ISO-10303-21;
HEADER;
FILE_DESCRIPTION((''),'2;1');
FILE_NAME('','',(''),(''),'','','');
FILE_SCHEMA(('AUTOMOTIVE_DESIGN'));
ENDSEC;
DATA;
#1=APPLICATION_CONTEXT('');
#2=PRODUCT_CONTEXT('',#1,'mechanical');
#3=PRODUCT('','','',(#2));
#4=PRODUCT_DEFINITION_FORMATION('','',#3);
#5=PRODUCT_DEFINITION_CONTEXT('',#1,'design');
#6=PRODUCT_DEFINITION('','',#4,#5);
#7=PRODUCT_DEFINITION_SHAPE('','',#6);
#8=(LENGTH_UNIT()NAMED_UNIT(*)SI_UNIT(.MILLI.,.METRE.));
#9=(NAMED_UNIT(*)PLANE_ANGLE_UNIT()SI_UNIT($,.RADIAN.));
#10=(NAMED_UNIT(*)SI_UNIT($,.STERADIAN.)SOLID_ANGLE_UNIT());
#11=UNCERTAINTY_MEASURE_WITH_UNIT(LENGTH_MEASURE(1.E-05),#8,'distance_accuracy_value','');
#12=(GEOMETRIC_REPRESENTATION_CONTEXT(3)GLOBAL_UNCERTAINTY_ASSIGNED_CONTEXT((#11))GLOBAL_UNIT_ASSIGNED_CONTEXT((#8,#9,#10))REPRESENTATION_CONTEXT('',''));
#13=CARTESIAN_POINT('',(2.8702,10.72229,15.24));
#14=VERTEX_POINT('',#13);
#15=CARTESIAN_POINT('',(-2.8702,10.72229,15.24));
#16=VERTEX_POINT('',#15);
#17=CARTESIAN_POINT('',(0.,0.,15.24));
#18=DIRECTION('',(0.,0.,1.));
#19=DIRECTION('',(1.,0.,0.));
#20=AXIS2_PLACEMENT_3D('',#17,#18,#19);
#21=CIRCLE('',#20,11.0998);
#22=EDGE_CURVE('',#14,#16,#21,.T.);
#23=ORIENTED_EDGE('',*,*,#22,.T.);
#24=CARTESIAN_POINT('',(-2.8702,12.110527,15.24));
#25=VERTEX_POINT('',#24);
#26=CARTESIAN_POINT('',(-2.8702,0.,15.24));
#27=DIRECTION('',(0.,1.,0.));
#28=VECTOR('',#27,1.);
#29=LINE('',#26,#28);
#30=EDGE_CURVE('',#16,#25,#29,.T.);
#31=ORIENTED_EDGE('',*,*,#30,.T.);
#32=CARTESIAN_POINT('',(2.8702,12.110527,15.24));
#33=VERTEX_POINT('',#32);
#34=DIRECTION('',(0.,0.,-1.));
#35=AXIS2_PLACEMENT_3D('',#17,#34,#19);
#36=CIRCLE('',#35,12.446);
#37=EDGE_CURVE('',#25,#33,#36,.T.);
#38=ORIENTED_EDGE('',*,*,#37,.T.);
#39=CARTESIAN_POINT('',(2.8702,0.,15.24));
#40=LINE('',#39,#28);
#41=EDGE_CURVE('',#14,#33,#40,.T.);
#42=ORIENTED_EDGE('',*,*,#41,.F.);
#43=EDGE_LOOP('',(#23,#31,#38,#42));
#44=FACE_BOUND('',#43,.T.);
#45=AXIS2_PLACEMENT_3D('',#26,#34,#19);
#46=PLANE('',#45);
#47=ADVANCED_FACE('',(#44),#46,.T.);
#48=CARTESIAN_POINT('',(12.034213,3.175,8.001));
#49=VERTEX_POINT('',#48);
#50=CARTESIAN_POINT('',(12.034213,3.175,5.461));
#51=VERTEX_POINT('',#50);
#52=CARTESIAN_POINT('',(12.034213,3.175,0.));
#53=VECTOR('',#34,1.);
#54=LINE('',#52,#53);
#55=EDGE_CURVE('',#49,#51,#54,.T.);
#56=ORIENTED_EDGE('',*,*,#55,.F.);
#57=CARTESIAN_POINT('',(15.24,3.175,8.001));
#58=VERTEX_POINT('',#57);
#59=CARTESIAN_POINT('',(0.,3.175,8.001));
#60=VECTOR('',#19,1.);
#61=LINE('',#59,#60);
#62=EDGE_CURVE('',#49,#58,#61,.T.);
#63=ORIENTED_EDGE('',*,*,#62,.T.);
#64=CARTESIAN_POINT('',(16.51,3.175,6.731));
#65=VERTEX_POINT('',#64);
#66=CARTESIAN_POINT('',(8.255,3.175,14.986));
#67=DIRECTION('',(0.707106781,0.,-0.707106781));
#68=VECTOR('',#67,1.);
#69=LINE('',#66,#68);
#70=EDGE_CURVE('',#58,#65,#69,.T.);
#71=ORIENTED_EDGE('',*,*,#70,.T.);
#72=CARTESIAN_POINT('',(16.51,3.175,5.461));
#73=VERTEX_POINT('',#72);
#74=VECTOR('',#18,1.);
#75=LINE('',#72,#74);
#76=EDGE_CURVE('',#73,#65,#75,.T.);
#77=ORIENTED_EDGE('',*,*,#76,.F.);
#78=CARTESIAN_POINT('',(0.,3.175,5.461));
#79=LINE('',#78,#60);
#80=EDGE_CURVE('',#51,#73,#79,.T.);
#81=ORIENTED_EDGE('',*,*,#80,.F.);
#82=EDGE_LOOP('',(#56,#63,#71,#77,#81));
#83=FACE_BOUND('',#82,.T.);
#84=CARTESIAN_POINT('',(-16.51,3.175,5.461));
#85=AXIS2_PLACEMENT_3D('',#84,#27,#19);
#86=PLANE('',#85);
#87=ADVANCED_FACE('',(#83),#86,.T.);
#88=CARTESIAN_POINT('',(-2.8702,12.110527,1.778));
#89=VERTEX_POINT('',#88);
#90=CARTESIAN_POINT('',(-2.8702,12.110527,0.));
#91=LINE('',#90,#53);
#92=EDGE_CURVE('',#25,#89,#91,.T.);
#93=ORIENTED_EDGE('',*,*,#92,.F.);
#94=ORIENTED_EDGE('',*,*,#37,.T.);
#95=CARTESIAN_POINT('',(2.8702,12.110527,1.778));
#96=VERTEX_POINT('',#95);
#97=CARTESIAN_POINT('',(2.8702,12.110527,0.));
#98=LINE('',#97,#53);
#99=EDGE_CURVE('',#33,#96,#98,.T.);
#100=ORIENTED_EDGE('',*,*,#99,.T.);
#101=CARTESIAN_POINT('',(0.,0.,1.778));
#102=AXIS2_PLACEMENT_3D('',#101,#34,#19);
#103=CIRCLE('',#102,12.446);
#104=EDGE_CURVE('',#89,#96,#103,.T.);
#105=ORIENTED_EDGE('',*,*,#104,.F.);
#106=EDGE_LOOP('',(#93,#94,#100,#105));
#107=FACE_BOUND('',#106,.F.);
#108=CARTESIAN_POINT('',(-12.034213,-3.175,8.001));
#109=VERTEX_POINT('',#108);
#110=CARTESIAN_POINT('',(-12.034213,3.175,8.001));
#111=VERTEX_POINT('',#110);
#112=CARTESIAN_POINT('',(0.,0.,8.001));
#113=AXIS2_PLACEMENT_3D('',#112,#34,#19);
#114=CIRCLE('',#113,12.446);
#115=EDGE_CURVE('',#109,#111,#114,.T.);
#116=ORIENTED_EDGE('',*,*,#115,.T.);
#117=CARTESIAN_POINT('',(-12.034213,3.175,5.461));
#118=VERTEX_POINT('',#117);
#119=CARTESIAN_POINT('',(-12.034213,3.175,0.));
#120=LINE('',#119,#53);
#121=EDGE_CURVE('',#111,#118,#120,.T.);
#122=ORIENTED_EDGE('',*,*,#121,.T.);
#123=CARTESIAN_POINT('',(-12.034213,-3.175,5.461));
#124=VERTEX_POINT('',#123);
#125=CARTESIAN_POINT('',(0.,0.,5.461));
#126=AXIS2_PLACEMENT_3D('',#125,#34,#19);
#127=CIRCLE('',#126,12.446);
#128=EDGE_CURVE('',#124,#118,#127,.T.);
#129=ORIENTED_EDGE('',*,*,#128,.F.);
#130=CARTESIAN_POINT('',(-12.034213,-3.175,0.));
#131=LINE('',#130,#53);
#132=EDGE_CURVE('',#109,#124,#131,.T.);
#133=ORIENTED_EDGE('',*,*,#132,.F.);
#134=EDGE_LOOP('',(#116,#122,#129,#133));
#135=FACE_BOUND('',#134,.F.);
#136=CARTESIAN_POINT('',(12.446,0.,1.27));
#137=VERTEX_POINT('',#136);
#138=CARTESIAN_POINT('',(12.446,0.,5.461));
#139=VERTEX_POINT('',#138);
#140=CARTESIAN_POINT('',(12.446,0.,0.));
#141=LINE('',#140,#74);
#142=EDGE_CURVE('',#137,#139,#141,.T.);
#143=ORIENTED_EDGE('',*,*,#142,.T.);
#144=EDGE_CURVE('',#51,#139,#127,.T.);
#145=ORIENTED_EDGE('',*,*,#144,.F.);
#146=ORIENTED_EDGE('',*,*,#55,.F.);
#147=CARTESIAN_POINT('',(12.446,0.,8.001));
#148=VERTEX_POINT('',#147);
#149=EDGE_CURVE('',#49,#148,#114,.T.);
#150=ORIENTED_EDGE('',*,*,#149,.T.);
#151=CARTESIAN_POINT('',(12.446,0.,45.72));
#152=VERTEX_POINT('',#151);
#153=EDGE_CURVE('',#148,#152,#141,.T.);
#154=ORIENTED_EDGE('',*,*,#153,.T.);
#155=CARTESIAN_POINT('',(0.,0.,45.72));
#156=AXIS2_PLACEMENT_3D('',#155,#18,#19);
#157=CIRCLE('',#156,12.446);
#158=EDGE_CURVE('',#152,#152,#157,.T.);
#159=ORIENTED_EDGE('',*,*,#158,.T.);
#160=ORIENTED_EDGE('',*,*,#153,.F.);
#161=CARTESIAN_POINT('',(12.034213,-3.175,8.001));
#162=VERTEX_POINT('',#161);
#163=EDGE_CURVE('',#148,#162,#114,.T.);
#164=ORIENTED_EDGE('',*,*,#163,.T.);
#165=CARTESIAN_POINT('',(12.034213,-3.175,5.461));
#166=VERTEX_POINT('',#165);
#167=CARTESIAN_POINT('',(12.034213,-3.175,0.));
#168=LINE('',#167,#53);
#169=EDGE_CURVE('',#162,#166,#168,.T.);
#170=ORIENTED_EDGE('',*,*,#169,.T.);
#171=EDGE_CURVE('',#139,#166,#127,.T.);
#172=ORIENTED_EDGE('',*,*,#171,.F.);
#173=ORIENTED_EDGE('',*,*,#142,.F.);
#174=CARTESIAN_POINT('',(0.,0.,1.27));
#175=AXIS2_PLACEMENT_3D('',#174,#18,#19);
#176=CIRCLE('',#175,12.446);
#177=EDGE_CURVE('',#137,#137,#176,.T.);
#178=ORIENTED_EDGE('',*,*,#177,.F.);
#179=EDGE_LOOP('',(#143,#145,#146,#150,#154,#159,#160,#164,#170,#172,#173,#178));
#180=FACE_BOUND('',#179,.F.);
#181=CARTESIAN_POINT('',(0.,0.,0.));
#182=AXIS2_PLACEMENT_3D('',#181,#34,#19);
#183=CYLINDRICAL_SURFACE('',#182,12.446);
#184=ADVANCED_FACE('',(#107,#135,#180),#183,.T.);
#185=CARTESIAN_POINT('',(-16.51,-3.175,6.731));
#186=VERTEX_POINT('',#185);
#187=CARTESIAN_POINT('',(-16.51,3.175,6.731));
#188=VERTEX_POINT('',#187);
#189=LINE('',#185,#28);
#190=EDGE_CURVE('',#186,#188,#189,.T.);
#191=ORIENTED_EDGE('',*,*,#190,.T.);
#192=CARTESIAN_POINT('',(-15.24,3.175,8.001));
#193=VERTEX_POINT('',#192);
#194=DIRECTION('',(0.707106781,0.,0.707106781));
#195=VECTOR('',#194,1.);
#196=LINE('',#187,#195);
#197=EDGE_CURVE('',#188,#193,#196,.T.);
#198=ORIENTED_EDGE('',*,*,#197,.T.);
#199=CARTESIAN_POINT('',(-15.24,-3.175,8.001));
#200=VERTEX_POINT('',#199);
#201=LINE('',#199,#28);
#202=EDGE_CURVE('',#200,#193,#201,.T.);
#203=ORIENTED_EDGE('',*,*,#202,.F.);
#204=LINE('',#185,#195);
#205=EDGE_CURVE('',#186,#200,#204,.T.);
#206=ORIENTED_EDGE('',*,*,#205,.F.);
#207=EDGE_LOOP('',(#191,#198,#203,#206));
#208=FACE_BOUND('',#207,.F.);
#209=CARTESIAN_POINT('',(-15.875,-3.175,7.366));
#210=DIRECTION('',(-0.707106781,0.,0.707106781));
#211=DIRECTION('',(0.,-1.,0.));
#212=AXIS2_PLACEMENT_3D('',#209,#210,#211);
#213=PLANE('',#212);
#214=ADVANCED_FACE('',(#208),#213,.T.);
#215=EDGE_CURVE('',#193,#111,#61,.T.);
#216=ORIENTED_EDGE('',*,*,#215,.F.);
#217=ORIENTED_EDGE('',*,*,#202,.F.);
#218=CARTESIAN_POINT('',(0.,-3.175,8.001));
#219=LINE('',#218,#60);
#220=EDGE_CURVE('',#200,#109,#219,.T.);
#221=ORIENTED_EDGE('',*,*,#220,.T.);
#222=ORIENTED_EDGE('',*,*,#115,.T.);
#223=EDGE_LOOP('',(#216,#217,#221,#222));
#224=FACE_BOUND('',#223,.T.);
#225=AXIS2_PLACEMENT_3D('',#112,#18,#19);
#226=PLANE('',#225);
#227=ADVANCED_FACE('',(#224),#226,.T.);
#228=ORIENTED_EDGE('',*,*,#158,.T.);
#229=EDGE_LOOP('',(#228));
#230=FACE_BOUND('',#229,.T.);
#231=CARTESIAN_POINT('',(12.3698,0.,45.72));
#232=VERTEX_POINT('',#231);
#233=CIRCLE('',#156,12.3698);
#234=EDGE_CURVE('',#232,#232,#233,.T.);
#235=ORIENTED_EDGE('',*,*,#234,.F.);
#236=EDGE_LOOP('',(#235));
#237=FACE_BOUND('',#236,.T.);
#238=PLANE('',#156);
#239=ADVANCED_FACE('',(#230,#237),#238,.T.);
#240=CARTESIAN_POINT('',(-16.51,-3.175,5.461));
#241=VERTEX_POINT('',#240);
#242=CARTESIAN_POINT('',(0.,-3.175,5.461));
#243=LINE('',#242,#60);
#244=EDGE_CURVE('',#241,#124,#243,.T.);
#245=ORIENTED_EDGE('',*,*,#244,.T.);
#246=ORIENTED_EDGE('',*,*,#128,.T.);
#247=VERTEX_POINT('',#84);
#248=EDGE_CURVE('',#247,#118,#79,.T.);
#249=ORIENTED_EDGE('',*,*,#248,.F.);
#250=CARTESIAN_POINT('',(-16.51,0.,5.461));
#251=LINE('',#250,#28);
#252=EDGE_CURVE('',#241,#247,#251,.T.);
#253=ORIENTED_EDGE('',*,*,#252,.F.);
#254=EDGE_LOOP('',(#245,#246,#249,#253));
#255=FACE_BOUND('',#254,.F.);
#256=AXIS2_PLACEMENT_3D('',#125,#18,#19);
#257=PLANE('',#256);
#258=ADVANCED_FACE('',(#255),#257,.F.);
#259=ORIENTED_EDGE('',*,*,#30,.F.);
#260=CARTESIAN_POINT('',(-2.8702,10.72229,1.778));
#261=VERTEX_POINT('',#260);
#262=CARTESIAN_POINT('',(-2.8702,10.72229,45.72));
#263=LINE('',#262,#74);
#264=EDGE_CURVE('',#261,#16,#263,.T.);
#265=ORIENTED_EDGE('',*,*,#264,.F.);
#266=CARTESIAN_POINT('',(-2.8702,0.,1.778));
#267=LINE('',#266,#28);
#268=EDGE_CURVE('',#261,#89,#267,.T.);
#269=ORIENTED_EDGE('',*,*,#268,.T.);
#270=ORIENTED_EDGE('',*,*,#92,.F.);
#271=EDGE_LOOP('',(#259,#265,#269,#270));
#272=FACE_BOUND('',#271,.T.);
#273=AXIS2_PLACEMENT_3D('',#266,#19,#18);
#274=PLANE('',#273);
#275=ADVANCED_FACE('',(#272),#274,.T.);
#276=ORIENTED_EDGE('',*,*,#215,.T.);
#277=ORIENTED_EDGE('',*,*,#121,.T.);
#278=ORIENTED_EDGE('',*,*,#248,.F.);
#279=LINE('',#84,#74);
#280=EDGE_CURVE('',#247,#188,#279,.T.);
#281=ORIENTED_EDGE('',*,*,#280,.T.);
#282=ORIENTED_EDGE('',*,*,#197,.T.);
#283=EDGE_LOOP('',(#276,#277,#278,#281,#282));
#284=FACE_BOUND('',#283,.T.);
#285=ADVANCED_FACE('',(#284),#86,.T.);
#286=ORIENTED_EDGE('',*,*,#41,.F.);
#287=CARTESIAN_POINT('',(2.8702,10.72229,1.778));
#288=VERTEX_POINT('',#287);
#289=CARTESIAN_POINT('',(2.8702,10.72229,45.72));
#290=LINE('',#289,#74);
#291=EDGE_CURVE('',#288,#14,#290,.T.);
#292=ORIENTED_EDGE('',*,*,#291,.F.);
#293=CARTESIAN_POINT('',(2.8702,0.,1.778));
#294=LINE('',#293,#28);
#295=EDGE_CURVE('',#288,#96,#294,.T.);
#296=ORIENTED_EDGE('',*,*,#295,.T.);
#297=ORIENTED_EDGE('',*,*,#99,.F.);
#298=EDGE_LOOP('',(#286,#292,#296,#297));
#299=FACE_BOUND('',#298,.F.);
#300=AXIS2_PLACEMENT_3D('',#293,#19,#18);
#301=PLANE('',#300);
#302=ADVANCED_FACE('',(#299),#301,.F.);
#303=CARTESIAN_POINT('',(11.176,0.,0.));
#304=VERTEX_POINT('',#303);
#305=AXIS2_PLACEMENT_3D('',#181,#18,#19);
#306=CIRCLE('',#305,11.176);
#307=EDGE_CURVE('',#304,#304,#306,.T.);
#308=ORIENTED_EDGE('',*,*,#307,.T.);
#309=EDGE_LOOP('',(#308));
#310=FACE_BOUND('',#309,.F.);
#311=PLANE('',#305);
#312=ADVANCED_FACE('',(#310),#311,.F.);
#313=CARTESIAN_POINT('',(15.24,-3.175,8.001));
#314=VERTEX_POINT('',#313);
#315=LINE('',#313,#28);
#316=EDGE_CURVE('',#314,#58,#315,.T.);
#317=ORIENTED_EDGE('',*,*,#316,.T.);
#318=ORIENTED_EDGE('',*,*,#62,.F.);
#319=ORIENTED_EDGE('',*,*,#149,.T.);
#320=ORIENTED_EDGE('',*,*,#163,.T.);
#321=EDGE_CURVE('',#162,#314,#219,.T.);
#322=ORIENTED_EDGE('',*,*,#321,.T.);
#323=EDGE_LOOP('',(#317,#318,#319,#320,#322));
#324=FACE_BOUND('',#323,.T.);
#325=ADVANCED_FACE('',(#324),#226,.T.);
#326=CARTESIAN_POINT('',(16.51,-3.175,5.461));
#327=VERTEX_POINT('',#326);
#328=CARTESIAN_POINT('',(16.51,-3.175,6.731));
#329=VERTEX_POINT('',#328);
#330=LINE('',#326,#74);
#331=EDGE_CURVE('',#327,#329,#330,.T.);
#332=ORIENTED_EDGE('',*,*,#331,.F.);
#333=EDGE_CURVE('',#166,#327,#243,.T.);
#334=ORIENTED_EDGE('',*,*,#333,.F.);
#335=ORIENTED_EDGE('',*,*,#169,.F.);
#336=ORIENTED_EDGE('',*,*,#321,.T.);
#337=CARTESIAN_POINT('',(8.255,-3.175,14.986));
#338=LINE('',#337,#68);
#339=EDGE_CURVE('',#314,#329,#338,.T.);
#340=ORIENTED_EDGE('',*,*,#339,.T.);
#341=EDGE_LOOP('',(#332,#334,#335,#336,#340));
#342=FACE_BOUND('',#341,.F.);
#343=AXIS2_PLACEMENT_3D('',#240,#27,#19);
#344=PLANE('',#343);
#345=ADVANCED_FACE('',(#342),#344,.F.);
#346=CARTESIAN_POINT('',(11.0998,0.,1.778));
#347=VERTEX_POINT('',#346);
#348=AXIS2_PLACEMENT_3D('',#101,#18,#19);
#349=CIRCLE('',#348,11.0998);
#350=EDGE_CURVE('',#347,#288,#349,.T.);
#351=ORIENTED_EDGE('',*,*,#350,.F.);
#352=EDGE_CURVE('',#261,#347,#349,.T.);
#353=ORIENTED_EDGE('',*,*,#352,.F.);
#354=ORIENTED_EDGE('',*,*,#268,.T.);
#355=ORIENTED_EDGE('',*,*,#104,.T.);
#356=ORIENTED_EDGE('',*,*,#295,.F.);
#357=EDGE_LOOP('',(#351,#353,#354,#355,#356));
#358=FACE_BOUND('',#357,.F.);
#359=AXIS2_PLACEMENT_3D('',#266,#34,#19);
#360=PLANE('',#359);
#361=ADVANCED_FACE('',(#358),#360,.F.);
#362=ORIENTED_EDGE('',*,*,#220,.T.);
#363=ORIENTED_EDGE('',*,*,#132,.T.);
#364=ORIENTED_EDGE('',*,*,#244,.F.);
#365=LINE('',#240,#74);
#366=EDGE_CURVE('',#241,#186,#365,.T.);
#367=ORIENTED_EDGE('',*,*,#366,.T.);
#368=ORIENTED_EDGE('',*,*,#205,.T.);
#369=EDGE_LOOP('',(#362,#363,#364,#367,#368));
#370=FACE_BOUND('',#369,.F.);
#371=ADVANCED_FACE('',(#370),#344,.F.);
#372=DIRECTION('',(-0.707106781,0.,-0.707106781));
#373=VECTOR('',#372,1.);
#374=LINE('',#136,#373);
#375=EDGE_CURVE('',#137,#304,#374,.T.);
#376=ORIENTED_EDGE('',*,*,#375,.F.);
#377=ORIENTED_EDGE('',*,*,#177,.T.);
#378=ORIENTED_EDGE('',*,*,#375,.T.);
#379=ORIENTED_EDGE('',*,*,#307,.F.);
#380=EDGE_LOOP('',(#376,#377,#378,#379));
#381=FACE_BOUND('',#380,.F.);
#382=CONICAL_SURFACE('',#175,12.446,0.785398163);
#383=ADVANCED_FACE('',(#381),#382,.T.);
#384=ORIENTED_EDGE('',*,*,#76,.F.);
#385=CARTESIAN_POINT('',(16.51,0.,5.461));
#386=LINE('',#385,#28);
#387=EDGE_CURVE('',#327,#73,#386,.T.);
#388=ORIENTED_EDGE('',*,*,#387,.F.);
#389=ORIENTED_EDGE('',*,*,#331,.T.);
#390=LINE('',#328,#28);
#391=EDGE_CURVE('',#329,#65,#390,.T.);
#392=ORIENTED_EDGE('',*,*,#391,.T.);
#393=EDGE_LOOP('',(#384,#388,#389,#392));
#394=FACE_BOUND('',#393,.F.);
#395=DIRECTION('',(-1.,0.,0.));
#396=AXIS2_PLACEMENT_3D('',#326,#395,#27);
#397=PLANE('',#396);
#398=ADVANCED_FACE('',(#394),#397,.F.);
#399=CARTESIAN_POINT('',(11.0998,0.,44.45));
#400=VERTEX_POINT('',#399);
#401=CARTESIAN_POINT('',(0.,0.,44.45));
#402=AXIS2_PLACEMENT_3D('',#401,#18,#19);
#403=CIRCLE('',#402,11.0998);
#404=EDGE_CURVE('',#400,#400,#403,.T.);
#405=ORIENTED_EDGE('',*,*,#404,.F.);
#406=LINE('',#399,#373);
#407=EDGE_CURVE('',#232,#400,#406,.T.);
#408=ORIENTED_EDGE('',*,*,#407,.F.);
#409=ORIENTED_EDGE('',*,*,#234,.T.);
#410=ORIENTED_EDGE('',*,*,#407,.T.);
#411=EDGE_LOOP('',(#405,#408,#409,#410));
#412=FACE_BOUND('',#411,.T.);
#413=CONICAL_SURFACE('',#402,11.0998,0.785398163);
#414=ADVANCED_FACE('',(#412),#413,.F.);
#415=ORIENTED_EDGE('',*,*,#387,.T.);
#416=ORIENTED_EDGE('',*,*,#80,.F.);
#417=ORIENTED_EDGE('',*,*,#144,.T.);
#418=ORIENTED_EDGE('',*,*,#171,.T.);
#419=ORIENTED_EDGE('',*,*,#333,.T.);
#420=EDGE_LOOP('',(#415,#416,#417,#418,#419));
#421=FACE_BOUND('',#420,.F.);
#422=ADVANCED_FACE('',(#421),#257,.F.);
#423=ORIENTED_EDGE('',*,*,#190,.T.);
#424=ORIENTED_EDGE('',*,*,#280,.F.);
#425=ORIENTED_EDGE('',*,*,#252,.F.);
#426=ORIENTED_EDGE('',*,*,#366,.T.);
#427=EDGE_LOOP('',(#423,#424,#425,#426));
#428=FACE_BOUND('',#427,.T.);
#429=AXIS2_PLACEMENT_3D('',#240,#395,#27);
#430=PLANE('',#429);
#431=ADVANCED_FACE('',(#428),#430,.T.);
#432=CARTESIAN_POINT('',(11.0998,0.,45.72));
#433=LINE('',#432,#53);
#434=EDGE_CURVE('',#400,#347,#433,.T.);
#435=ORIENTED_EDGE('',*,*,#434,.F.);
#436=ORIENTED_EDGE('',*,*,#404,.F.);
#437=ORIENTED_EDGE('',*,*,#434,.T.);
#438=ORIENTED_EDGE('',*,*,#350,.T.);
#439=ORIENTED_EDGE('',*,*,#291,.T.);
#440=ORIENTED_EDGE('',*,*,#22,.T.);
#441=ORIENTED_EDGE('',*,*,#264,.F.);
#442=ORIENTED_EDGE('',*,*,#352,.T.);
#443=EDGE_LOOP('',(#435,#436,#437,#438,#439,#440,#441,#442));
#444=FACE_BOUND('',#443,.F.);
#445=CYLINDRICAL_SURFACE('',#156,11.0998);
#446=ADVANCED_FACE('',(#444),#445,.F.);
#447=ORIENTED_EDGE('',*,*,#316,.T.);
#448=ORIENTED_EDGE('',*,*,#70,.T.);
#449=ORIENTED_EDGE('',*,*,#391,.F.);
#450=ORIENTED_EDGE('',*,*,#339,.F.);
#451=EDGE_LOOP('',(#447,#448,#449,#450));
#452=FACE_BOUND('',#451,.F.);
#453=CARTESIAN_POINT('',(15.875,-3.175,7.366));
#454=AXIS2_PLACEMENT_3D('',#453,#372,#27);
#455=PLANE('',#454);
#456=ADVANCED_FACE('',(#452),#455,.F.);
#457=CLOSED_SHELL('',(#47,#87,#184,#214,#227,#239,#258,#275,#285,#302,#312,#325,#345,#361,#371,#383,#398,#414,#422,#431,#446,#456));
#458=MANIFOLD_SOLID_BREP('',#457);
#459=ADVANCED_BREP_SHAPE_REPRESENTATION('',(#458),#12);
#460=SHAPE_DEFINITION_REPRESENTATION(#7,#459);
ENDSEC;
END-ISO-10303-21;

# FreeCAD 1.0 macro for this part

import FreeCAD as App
import Part
import Sketcher
Q = App.Units.Quantity


def edges_at(feature, points):
    """Names of the edges that pass closest to the given points."""
    edges = feature.Shape.Edges
    near = lambda p: min(range(len(edges)), key=lambda i: edges[i].distToShape(Part.Vertex(*p))[0])
    return sorted({f"Edge{near(p) + 1}" for p in points})

doc = App.newDocument("Part")
body = doc.addObject("PartDesign::Body", "Body")

# Sketch on XY plane
sketch1 = body.newObject("Sketcher::SketchObject", "Sketch")
sketch1.AttachmentSupport = (doc.getObject("XY_Plane"), [""])
sketch1.MapMode = "FlatFace"
sketch1.addGeometry(Part.Circle(App.Vector(0, 0, 0), App.Vector(0, 0, 1), 12), False)
sketch1.addConstraint([
    Sketcher.Constraint("Coincident", 0, 3, -1, 1),
    Sketcher.Constraint("Diameter", 0, Q("0.98 in")),
])
pad1 = body.newObject("PartDesign::Pad", "Pad")
pad1.Profile = sketch1
pad1.Length = Q("1.8 in")

# Sketch on XY plane
sketch2 = body.newObject("Sketcher::SketchObject", "Sketch001")
sketch2.AttachmentSupport = (doc.getObject("XY_Plane"), [""])
sketch2.MapMode = "FlatFace"
sketch2.AttachmentOffset = App.Placement(App.Vector(0, 0, 0.215 * 25.4), App.Rotation())
sketch2.addGeometry([
    Part.LineSegment(App.Vector(-17, 3, 0), App.Vector(-17, -3, 0)),
    Part.LineSegment(App.Vector(-17, -3, 0), App.Vector(17, -3, 0)),
    Part.LineSegment(App.Vector(17, -3, 0), App.Vector(17, 3, 0)),
    Part.LineSegment(App.Vector(17, 3, 0), App.Vector(-17, 3, 0)),
], False)
sketch2.addConstraint([
    Sketcher.Constraint("Coincident", 0, 2, 1, 1),
    Sketcher.Constraint("Coincident", 1, 2, 2, 1),
    Sketcher.Constraint("Coincident", 2, 2, 3, 1),
    Sketcher.Constraint("Coincident", 3, 2, 0, 1),
    Sketcher.Constraint("Vertical", 0),
    Sketcher.Constraint("Horizontal", 1),
    Sketcher.Constraint("Vertical", 2),
    Sketcher.Constraint("Horizontal", 3),
    Sketcher.Constraint("Symmetric", 0, 2, 2, 2, -1, 1),
    Sketcher.Constraint("DistanceX", 1, 1, 1, 2, Q("1.3 in")),
    Sketcher.Constraint("DistanceY", 0, 2, 0, 1, Q("0.25 in")),
])
pad2 = body.newObject("PartDesign::Pad", "Pad001")
pad2.Profile = sketch2
pad2.Length = Q("0.1 in")

# Sketch on XY plane
sketch3 = body.newObject("Sketcher::SketchObject", "Sketch002")
sketch3.AttachmentSupport = (doc.getObject("XY_Plane"), [""])
sketch3.MapMode = "FlatFace"
sketch3.AttachmentOffset = App.Placement(App.Vector(0, 0, 1.8 * 25.4), App.Rotation())
sketch3.addGeometry(Part.Circle(App.Vector(0, 0, 0), App.Vector(0, 0, 1), 11), False)
sketch3.addConstraint([
    Sketcher.Constraint("Coincident", 0, 3, -1, 1),
    Sketcher.Constraint("Diameter", 0, Q("0.874 in")),
])
pocket1 = body.newObject("PartDesign::Pocket", "Pocket")
pocket1.Profile = sketch3
pocket1.Length = Q("1.73 in")

# Sketch on XZ plane
sketch4 = body.newObject("Sketcher::SketchObject", "Sketch003")
sketch4.AttachmentSupport = (doc.getObject("XZ_Plane"), [""])
sketch4.MapMode = "FlatFace"
sketch4.addGeometry([
    Part.LineSegment(App.Vector(-3, 15, 0), App.Vector(-3, 2, 0)),
    Part.LineSegment(App.Vector(-3, 2, 0), App.Vector(3, 2, 0)),
    Part.LineSegment(App.Vector(3, 2, 0), App.Vector(3, 15, 0)),
    Part.LineSegment(App.Vector(3, 15, 0), App.Vector(-3, 15, 0)),
], False)
sketch4.addConstraint([
    Sketcher.Constraint("Coincident", 0, 2, 1, 1),
    Sketcher.Constraint("Coincident", 1, 2, 2, 1),
    Sketcher.Constraint("Coincident", 2, 2, 3, 1),
    Sketcher.Constraint("Coincident", 3, 2, 0, 1),
    Sketcher.Constraint("Vertical", 0),
    Sketcher.Constraint("Horizontal", 1),
    Sketcher.Constraint("Vertical", 2),
    Sketcher.Constraint("Horizontal", 3),
    Sketcher.Constraint("DistanceY", 0, 2, 0, 1, Q("0.53 in")),
    Sketcher.Constraint("DistanceY", -1, 1, 2, 2, Q("0.6 in")),
    Sketcher.Constraint("DistanceX", 1, 1, 1, 2, Q("0.226 in")),
    Sketcher.Constraint("DistanceX", 0, 2, -1, 1, Q("0.113 in")),
])
pocket2 = body.newObject("PartDesign::Pocket", "Pocket001")
pocket2.Profile = sketch4
pocket2.Length = Q("1 in")
doc.recompute()

chamfer = body.newObject("PartDesign::Chamfer", "Chamfer")
chamfer.Base = (pocket2, edges_at(pocket2, [
    (-12.446, 0, 0),
    (-16.51, 0, 8.001),
    (16.51, 0, 8.001),
    (-11.1, 0, 45.72),
]))
chamfer.Size = Q("0.05 in")

doc.recompute()
